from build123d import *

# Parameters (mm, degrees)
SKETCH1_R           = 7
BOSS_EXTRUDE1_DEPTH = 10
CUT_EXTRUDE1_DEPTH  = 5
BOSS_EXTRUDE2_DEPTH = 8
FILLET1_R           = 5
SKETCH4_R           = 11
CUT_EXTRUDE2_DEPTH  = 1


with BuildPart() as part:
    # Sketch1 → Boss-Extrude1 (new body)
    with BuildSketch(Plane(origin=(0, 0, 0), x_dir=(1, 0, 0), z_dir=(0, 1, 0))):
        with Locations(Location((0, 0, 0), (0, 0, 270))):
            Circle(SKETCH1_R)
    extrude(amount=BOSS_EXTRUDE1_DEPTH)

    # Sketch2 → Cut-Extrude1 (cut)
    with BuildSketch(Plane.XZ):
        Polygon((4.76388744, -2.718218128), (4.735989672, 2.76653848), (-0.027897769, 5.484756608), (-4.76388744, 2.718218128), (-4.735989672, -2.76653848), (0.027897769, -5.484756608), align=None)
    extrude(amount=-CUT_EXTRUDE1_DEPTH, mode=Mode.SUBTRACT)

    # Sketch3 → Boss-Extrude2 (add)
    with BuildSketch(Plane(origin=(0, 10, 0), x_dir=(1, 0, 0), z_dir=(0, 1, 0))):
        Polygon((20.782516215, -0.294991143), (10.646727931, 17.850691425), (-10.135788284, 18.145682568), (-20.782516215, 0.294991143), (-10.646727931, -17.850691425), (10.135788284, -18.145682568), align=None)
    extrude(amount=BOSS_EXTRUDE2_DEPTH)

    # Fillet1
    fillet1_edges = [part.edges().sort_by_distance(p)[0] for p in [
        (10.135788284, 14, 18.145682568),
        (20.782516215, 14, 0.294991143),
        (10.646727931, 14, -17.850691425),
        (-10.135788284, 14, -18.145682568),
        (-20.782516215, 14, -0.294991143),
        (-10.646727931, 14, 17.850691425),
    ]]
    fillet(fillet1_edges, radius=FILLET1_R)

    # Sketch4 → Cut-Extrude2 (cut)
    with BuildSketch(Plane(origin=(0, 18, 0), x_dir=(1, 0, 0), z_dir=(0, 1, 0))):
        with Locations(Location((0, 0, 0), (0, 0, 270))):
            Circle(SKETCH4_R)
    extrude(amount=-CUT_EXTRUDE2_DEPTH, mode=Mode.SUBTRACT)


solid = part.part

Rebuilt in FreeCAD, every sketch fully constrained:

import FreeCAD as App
import Part
import Sketcher

V = App.Vector


def edges_at(feature, points):
    """Names of the edges that pass closest to the given points."""
    edges = feature.Shape.Edges
    near = lambda p: min(range(len(edges)), key=lambda i: edges[i].distToShape(Part.Vertex(*p))[0])
    return sorted({f"Edge{near(p) + 1}" for p in points})


def add_polygon(sketch, points):
    """Adds a closed chain of lines whose ends are joined by coincident constraints."""
    first, n = sketch.GeometryCount, len(points)
    for a, b in zip(points, points[1:] + points[:1]):
        sketch.addGeometry(Part.LineSegment(App.Vector(*a, 0), App.Vector(*b, 0)), False)
    for i in range(n):
        sketch.addConstraint(Sketcher.Constraint("Coincident", first + i, 2, first + (i + 1) % n, 1))

doc = App.newDocument("Part")
body = doc.addObject("PartDesign::Body", "Body")

# Sketch on XZ plane
sketch1 = body.newObject("Sketcher::SketchObject", "Sketch")
sketch1.AttachmentSupport = (doc.getObject("XZ_Plane"), [""])
sketch1.MapMode = "FlatFace"
sketch1.addGeometry(Part.Circle(V(0, 0, 0), V(0, 0, 1), 7), False)
sketch1.addConstraint([
    Sketcher.Constraint("Coincident", 0, 3, -1, 1),
    Sketcher.Constraint("Diameter", 0, 14.0),
])
pad1 = body.newObject("PartDesign::Pad", "Pad")
pad1.Profile = sketch1
pad1.Length = 10
pad1.Reversed = True

# Sketch on XZ plane
sketch2 = body.newObject("Sketcher::SketchObject", "Sketch001")
sketch2.AttachmentSupport = (doc.getObject("XZ_Plane"), [""])
sketch2.MapMode = "FlatFace"
add_polygon(sketch2, [(4.763887, -2.718218), (4.73599, 2.766538), (-0.027898, 5.484757), (-4.763887, 2.718218), (-4.73599, -2.766538), (0.027898, -5.484757)])  # lines 0-5
sketch2.addConstraint([
    Sketcher.Constraint("Symmetric", 0, 2, 3, 2, -1, 1),
    Sketcher.Constraint("Symmetric", 1, 2, 4, 2, -1, 1),
    Sketcher.Constraint("Symmetric", 2, 2, 5, 2, -1, 1),
    Sketcher.Constraint("Equal", 0, 1),
    Sketcher.Constraint("Equal", 1, 2),
    Sketcher.Constraint("DistanceX", -1, 1, 0, 2, 4.73599),
    Sketcher.Constraint("DistanceY", -1, 1, 0, 2, 2.766538),
    Sketcher.Constraint("DistanceY", -1, 1, 2, 2, 2.718218),
    Sketcher.Constraint("DistanceY", 0, 2, 1, 2, 2.718218),
])
pocket1 = body.newObject("PartDesign::Pocket", "Pocket")
pocket1.Profile = sketch2
pocket1.Length = 5

# Sketch on XZ plane
sketch3 = body.newObject("Sketcher::SketchObject", "Sketch002")
sketch3.AttachmentSupport = (doc.getObject("XZ_Plane"), [""])
sketch3.MapMode = "FlatFace"
sketch3.AttachmentOffset = App.Placement(V(0, 0, -10), App.Rotation())
add_polygon(sketch3, [(20.782516, 0.294991), (10.646728, -17.850691), (-10.135788, -18.145683), (-20.782516, -0.294991), (-10.646728, 17.850691), (10.135788, 18.145683)])  # lines 0-5
sketch3.addConstraint([
    Sketcher.Constraint("Symmetric", 0, 2, 3, 2, -1, 1),
    Sketcher.Constraint("Symmetric", 1, 2, 4, 2, -1, 1),
    Sketcher.Constraint("Symmetric", 2, 2, 5, 2, -1, 1),
    Sketcher.Constraint("Equal", 0, 1),
    Sketcher.Constraint("Equal", 1, 2),
    Sketcher.Constraint("DistanceY", 0, 2, 2, 2, 17.5557),
    Sketcher.Constraint("Distance", 0, 20.78461),
    Sketcher.Constraint("DistanceY", 0, 2, -1, 1, 17.850691),
    Sketcher.Constraint("DistanceX", 1, 2, -1, 1, 10.135788),
])
pad2 = body.newObject("PartDesign::Pad", "Pad001")
pad2.Profile = sketch3
pad2.Length = 8
pad2.Reversed = True
doc.recompute()

fillet = body.newObject("PartDesign::Fillet", "Fillet")
fillet.Base = (pad2, edges_at(pad2, [
    (10.136, 14, 18.146),
    (20.783, 14, 0.295),
    (10.647, 14, -17.851),
    (-10.136, 14, -18.146),
    (-20.783, 14, -0.295),
    (-10.647, 14, 17.851),
]))
fillet.Radius = 5

# Sketch on XZ plane
sketch4 = body.newObject("Sketcher::SketchObject", "Sketch003")
sketch4.AttachmentSupport = (doc.getObject("XZ_Plane"), [""])
sketch4.MapMode = "FlatFace"
sketch4.AttachmentOffset = App.Placement(V(0, 0, -18), App.Rotation())
sketch4.addGeometry(Part.Circle(V(0, 0, 0), V(0, 0, 1), 11), False)
sketch4.addConstraint([
    Sketcher.Constraint("Coincident", 0, 3, -1, 1),
    Sketcher.Constraint("Diameter", 0, 22.0),
])
pocket2 = body.newObject("PartDesign::Pocket", "Pocket001")
pocket2.Profile = sketch4
pocket2.Length = 1
pocket2.Reversed = True

doc.recompute()
